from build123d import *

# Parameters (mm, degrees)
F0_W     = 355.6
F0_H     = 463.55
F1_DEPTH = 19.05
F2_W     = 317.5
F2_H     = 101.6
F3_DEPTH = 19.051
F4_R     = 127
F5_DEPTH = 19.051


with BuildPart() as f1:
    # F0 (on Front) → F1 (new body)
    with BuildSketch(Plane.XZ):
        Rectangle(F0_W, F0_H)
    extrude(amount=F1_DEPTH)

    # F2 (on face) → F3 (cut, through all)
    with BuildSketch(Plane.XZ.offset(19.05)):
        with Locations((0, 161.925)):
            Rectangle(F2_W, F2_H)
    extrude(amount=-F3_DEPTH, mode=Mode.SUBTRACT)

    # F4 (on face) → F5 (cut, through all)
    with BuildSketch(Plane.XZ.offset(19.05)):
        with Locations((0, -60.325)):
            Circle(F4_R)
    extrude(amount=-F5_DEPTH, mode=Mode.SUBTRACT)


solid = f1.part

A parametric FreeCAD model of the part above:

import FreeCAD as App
import Part
import Sketcher
from FreeCAD import Vector
Q = App.Units.Quantity


def add_polygon(sketch, points):
    """Adds a closed chain of lines whose ends are joined by coincident constraints."""
    first, n = sketch.GeometryCount, len(points)
    for a, b in zip(points, points[1:] + points[:1]):
        sketch.addGeometry(Part.LineSegment(App.Vector(*a, 0), App.Vector(*b, 0)), False)
    for i in range(n):
        sketch.addConstraint(Sketcher.Constraint("Coincident", first + i, 2, first + (i + 1) % n, 1))

doc = App.newDocument("Part")
body = doc.addObject("PartDesign::Body", "Body")

# Sketch on XZ plane
sketch1 = body.newObject("Sketcher::SketchObject", "Sketch")
sketch1.AttachmentSupport = (doc.getObject("XZ_Plane"), [""])
sketch1.MapMode = "FlatFace"
add_polygon(sketch1, [(-178, 232), (-178, -232), (178, -232), (178, 232)])  # lines 0-3
sketch1.addConstraint([
    Sketcher.Constraint("Vertical", 0),
    Sketcher.Constraint("Horizontal", 1),
    Sketcher.Constraint("Vertical", 2),
    Sketcher.Constraint("Horizontal", 3),
    Sketcher.Constraint("Symmetric", 0, 2, 2, 2, -1, 1),
    Sketcher.Constraint("DistanceX", 1, 1, 1, 2, Q("14 in")),
    Sketcher.Constraint("DistanceY", 0, 2, 0, 1, Q("18.25 in")),
])
pad1 = body.newObject("PartDesign::Pad", "Pad")
pad1.Profile = sketch1
pad1.Length = Q("0.75 in")

# Sketch on XZ plane
sketch2 = body.newObject("Sketcher::SketchObject", "Sketch001")
sketch2.AttachmentSupport = (doc.getObject("XZ_Plane"), [""])
sketch2.MapMode = "FlatFace"
sketch2.AttachmentOffset = App.Placement(Vector(0, 0, 0.75 * 25.4), App.Rotation())
add_polygon(sketch2, [(-159, 213), (-159, 111), (159, 111), (159, 213)])  # lines 0-3
sketch2.addConstraint([
    Sketcher.Constraint("Vertical", 0),
    Sketcher.Constraint("Horizontal", 1),
    Sketcher.Constraint("Vertical", 2),
    Sketcher.Constraint("Horizontal", 3),
    Sketcher.Constraint("DistanceY", 0, 2, 0, 1, Q("4 in")),
    Sketcher.Constraint("DistanceX", 1, 1, 1, 2, Q("12.5 in")),
    Sketcher.Constraint("DistanceX", 0, 2, -1, 1, Q("6.25 in")),
    Sketcher.Constraint("DistanceY", -1, 1, 0, 2, Q("4.375 in")),
])
pocket1 = body.newObject("PartDesign::Pocket", "Pocket")
pocket1.Profile = sketch2
pocket1.Type = "ThroughAll"

# Sketch on XZ plane
sketch3 = body.newObject("Sketcher::SketchObject", "Sketch002")
sketch3.AttachmentSupport = (doc.getObject("XZ_Plane"), [""])
sketch3.MapMode = "FlatFace"
sketch3.AttachmentOffset = App.Placement(Vector(0, 0, 0.75 * 25.4), App.Rotation())
sketch3.addGeometry(Part.Circle(Vector(0, -60, 0), Vector(0, 0, 1), 127), False)
sketch3.addConstraint([
    Sketcher.Constraint("PointOnObject", 0, 3, -2),
    Sketcher.Constraint("Diameter", 0, Q("10 in")),
    Sketcher.Constraint("DistanceY", 0, 3, -1, 1, Q("2.375 in")),
])
pocket2 = body.newObject("PartDesign::Pocket", "Pocket001")
pocket2.Profile = sketch3
pocket2.Type = "ThroughAll"

doc.recompute()
